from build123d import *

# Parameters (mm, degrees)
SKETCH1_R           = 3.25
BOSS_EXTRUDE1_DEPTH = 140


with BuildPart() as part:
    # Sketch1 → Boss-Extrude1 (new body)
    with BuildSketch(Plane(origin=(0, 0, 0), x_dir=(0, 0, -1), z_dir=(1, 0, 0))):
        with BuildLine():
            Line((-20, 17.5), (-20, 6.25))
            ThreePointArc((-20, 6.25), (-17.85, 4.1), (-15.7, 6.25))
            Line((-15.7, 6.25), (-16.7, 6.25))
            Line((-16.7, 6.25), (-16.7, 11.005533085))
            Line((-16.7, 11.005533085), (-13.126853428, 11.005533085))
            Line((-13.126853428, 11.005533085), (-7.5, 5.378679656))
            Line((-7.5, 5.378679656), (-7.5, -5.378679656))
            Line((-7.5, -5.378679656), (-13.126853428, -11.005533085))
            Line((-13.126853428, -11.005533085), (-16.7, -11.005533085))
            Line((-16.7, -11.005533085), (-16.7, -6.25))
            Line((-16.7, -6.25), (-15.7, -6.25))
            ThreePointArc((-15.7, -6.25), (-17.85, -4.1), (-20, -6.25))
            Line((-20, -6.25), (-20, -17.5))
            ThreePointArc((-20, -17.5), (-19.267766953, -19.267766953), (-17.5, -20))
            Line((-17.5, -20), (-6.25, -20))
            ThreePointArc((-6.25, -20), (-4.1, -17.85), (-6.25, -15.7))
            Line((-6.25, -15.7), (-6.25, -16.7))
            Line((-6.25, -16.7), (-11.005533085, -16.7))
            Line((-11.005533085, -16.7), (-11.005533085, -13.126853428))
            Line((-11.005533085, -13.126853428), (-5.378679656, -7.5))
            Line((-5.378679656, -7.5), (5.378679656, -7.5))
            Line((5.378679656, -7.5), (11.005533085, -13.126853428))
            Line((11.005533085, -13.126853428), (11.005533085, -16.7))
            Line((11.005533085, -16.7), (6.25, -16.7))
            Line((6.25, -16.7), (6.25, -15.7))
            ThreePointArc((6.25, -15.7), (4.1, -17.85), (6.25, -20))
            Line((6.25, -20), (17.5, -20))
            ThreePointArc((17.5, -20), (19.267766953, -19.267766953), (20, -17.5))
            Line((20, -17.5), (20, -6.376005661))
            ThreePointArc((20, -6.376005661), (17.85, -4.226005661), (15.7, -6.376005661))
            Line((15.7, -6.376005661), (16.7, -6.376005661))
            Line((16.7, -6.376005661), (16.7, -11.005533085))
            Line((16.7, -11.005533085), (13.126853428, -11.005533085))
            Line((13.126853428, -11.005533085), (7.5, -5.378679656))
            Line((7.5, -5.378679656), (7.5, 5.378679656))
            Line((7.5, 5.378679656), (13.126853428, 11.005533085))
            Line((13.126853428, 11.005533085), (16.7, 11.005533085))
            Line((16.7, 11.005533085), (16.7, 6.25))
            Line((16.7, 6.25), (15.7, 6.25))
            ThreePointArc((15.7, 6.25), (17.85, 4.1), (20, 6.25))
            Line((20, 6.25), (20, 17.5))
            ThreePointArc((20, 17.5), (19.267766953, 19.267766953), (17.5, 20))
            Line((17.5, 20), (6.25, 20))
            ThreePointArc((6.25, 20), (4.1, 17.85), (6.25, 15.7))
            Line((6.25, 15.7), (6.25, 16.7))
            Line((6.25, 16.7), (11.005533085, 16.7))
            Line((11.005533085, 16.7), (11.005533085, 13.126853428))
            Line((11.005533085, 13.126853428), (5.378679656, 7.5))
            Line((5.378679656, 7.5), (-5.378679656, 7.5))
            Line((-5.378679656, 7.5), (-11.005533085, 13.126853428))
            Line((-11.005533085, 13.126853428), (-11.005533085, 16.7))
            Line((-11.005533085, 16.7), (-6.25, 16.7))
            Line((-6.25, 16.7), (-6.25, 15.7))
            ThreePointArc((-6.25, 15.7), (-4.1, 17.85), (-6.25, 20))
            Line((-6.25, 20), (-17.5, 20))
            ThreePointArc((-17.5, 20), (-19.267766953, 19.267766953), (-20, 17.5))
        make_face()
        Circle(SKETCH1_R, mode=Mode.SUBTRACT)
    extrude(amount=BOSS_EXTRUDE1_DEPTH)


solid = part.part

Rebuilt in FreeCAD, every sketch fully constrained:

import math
import FreeCAD as App
import Part
import Sketcher

V = App.Vector
Q = App.Units.Quantity

doc = App.newDocument("Part")
body = doc.addObject("PartDesign::Body", "Body")

# Sketch on YZ plane
sketch1 = doc.addObject("Sketcher::SketchObject", "Sketch")
body.addObject(sketch1)
sketch1.AttachmentSupport = (doc.YZ_Plane, [""])
sketch1.MapMode = "FlatFace"
sketch1.addGeometry([
    Part.LineSegment(V(17.5, 20, 0), V(6.2, 20, 0)),  # 0
    Part.ArcOfCircle(Part.Circle(V(6.2, 17.9, 0), V(0, 0, 1), 2.1), math.radians(90), math.radians(270)),  # 1
    Part.LineSegment(V(6.2, 15.7, 0), V(6.2, 16.7, 0)),  # 2
    Part.LineSegment(V(6.2, 16.7, 0), V(11, 16.7, 0)),  # 3
    Part.LineSegment(V(11, 16.7, 0), V(11, 13.1, 0)),  # 4
    Part.LineSegment(V(11, 13.1, 0), V(5.4, 7.5, 0)),  # 5
    Part.LineSegment(V(5.4, 7.5, 0), V(-5.4, 7.5, 0)),  # 6
    Part.LineSegment(V(-5.4, 7.5, 0), V(-11, 13.1, 0)),  # 7
    Part.LineSegment(V(-11, 13.1, 0), V(-11, 16.7, 0)),  # 8
    Part.LineSegment(V(-11, 16.7, 0), V(-6.2, 16.7, 0)),  # 9
    Part.LineSegment(V(-6.2, 16.7, 0), V(-6.2, 15.7, 0)),  # 10
    Part.ArcOfCircle(Part.Circle(V(-6.2, 17.9, 0), V(0, 0, 1), 2.1), math.radians(-90), math.radians(90)),  # 11
    Part.LineSegment(V(-6.2, 20, 0), V(-17.5, 20, 0)),  # 12
    Part.ArcOfCircle(Part.Circle(V(-17.5, 17.5, 0), V(0, 0, 1), 2.5), math.radians(90), math.radians(180)),  # 13
    Part.LineSegment(V(-20, 17.5, 0), V(-20, 6.2, 0)),  # 14
    Part.ArcOfCircle(Part.Circle(V(-17.9, 6.2, 0), V(0, 0, 1), 2.1), math.radians(180), math.radians(360)),  # 15
    Part.LineSegment(V(-15.7, 6.2, 0), V(-16.7, 6.2, 0)),  # 16
    Part.LineSegment(V(-16.7, 6.2, 0), V(-16.7, 11, 0)),  # 17
    Part.LineSegment(V(-16.7, 11, 0), V(-13.1, 11, 0)),  # 18
    Part.LineSegment(V(-13.1, 11, 0), V(-7.5, 5.4, 0)),  # 19
    Part.LineSegment(V(-7.5, 5.4, 0), V(-7.5, -5.4, 0)),  # 20
    Part.LineSegment(V(-7.5, -5.4, 0), V(-13.1, -11, 0)),  # 21
    Part.LineSegment(V(-13.1, -11, 0), V(-16.7, -11, 0)),  # 22
    Part.LineSegment(V(-16.7, -11, 0), V(-16.7, -6.2, 0)),  # 23
    Part.LineSegment(V(-16.7, -6.2, 0), V(-15.7, -6.2, 0)),  # 24
    Part.ArcOfCircle(Part.Circle(V(-17.9, -6.2, 0), V(0, 0, 1), 2.1), math.radians(0), math.radians(180)),  # 25
    Part.LineSegment(V(-20, -6.2, 0), V(-20, -17.5, 0)),  # 26
    Part.ArcOfCircle(Part.Circle(V(-17.5, -17.5, 0), V(0, 0, 1), 2.5), math.radians(180), math.radians(270)),  # 27
    Part.LineSegment(V(-17.5, -20, 0), V(-6.4, -20, 0)),  # 28
    Part.ArcOfCircle(Part.Circle(V(-6.4, -17.9, 0), V(0, 0, 1), 2.1), math.radians(-90), math.radians(90)),  # 29
    Part.LineSegment(V(-6.4, -15.7, 0), V(-6.4, -16.7, 0)),  # 30
    Part.LineSegment(V(-6.4, -16.7, 0), V(-11, -16.7, 0)),  # 31
    Part.LineSegment(V(-11, -16.7, 0), V(-11, -13.1, 0)),  # 32
    Part.LineSegment(V(-11, -13.1, 0), V(-5.4, -7.5, 0)),  # 33
    Part.LineSegment(V(-5.4, -7.5, 0), V(5.4, -7.5, 0)),  # 34
    Part.LineSegment(V(5.4, -7.5, 0), V(11, -13.1, 0)),  # 35
    Part.LineSegment(V(11, -13.1, 0), V(11, -16.7, 0)),  # 36
    Part.LineSegment(V(11, -16.7, 0), V(6.2, -16.7, 0)),  # 37
    Part.LineSegment(V(6.2, -16.7, 0), V(6.2, -15.7, 0)),  # 38
    Part.ArcOfCircle(Part.Circle(V(6.2, -17.9, 0), V(0, 0, 1), 2.1), math.radians(90), math.radians(270)),  # 39
    Part.LineSegment(V(6.2, -20, 0), V(17.5, -20, 0)),  # 40
    Part.ArcOfCircle(Part.Circle(V(17.5, -17.5, 0), V(0, 0, 1), 2.5), math.radians(-90), math.radians(0)),  # 41
    Part.LineSegment(V(20, -17.5, 0), V(20, -6.2, 0)),  # 42
    Part.ArcOfCircle(Part.Circle(V(17.9, -6.2, 0), V(0, 0, 1), 2.1), math.radians(0), math.radians(180)),  # 43
    Part.LineSegment(V(15.7, -6.2, 0), V(16.7, -6.2, 0)),  # 44
    Part.LineSegment(V(16.7, -6.2, 0), V(16.7, -11, 0)),  # 45
    Part.LineSegment(V(16.7, -11, 0), V(13.1, -11, 0)),  # 46
    Part.LineSegment(V(13.1, -11, 0), V(7.5, -5.4, 0)),  # 47
    Part.LineSegment(V(7.5, -5.4, 0), V(7.5, 5.4, 0)),  # 48
    Part.LineSegment(V(7.5, 5.4, 0), V(13.1, 11, 0)),  # 49
    Part.LineSegment(V(13.1, 11, 0), V(16.7, 11, 0)),  # 50
    Part.LineSegment(V(16.7, 11, 0), V(16.7, 6.2, 0)),  # 51
    Part.LineSegment(V(16.7, 6.2, 0), V(15.7, 6.2, 0)),  # 52
    Part.ArcOfCircle(Part.Circle(V(17.9, 6.2, 0), V(0, 0, 1), 2.1), math.radians(180), math.radians(360)),  # 53
    Part.LineSegment(V(20, 6.2, 0), V(20, 17.5, 0)),  # 54
    Part.ArcOfCircle(Part.Circle(V(17.5, 17.5, 0), V(0, 0, 1), 2.5), math.radians(0), math.radians(90)),  # 55
    Part.Circle(V(0, 0, 0), V(0, 0, 1), 3.2),  # 56
], False)
sketch1.addConstraint([
    Sketcher.Constraint("Tangent", 0, 2, 1, 1),
    Sketcher.Constraint("Coincident", 1, 2, 2, 1),
    Sketcher.Constraint("Coincident", 2, 2, 3, 1),
    Sketcher.Constraint("Coincident", 3, 2, 4, 1),
    Sketcher.Constraint("Coincident", 4, 2, 5, 1),
    Sketcher.Constraint("Coincident", 5, 2, 6, 1),
    Sketcher.Constraint("Coincident", 6, 2, 7, 1),
    Sketcher.Constraint("Coincident", 7, 2, 8, 1),
    Sketcher.Constraint("Coincident", 8, 2, 9, 1),
    Sketcher.Constraint("Coincident", 9, 2, 10, 1),
    Sketcher.Constraint("Coincident", 10, 2, 11, 1),
    Sketcher.Constraint("Tangent", 11, 2, 12, 1),
    Sketcher.Constraint("Tangent", 12, 2, 13, 1),
    Sketcher.Constraint("Tangent", 13, 2, 14, 1),
    Sketcher.Constraint("Tangent", 14, 2, 15, 1),
    Sketcher.Constraint("Coincident", 15, 2, 16, 1),
    Sketcher.Constraint("Coincident", 16, 2, 17, 1),
    Sketcher.Constraint("Coincident", 17, 2, 18, 1),
    Sketcher.Constraint("Coincident", 18, 2, 19, 1),
    Sketcher.Constraint("Coincident", 19, 2, 20, 1),
    Sketcher.Constraint("Coincident", 20, 2, 21, 1),
    Sketcher.Constraint("Coincident", 21, 2, 22, 1),
    Sketcher.Constraint("Coincident", 22, 2, 23, 1),
    Sketcher.Constraint("Coincident", 23, 2, 24, 1),
    Sketcher.Constraint("Coincident", 24, 2, 25, 1),
    Sketcher.Constraint("Tangent", 25, 2, 26, 1),
    Sketcher.Constraint("Tangent", 26, 2, 27, 1),
    Sketcher.Constraint("Tangent", 27, 2, 28, 1),
    Sketcher.Constraint("Tangent", 28, 2, 29, 1),
    Sketcher.Constraint("Coincident", 29, 2, 30, 1),
    Sketcher.Constraint("Coincident", 30, 2, 31, 1),
    Sketcher.Constraint("Coincident", 31, 2, 32, 1),
    Sketcher.Constraint("Coincident", 32, 2, 33, 1),
    Sketcher.Constraint("Coincident", 33, 2, 34, 1),
    Sketcher.Constraint("Coincident", 34, 2, 35, 1),
    Sketcher.Constraint("Coincident", 35, 2, 36, 1),
    Sketcher.Constraint("Coincident", 36, 2, 37, 1),
    Sketcher.Constraint("Coincident", 37, 2, 38, 1),
    Sketcher.Constraint("Coincident", 38, 2, 39, 1),
    Sketcher.Constraint("Tangent", 39, 2, 40, 1),
    Sketcher.Constraint("Tangent", 40, 2, 41, 1),
    Sketcher.Constraint("Tangent", 41, 2, 42, 1),
    Sketcher.Constraint("Tangent", 42, 2, 43, 1),
    Sketcher.Constraint("Coincident", 43, 2, 44, 1),
    Sketcher.Constraint("Coincident", 44, 2, 45, 1),
    Sketcher.Constraint("Coincident", 45, 2, 46, 1),
    Sketcher.Constraint("Coincident", 46, 2, 47, 1),
    Sketcher.Constraint("Coincident", 47, 2, 48, 1),
    Sketcher.Constraint("Coincident", 48, 2, 49, 1),
    Sketcher.Constraint("Coincident", 49, 2, 50, 1),
    Sketcher.Constraint("Coincident", 50, 2, 51, 1),
    Sketcher.Constraint("Coincident", 51, 2, 52, 1),
    Sketcher.Constraint("Coincident", 52, 2, 53, 1),
    Sketcher.Constraint("Tangent", 53, 2, 54, 1),
    Sketcher.Constraint("Tangent", 54, 2, 55, 1),
    Sketcher.Constraint("Tangent", 55, 2, 0, 1),
    Sketcher.Constraint("Horizontal", 0),
    Sketcher.Constraint("Vertical", 2),
    Sketcher.Constraint("Horizontal", 3),
    Sketcher.Constraint("Vertical", 4),
    Sketcher.Constraint("Horizontal", 6),
    Sketcher.Constraint("Vertical", 8),
    Sketcher.Constraint("Horizontal", 9),
    Sketcher.Constraint("Vertical", 10),
    Sketcher.Constraint("Horizontal", 12),
    Sketcher.Constraint("Vertical", 14),
    Sketcher.Constraint("Horizontal", 16),
    Sketcher.Constraint("Vertical", 17),
    Sketcher.Constraint("Horizontal", 18),
    Sketcher.Constraint("Vertical", 20),
    Sketcher.Constraint("Horizontal", 22),
    Sketcher.Constraint("Vertical", 23),
    Sketcher.Constraint("Horizontal", 24),
    Sketcher.Constraint("Vertical", 26),
    Sketcher.Constraint("Horizontal", 28),
    Sketcher.Constraint("Vertical", 30),
    Sketcher.Constraint("Horizontal", 31),
    Sketcher.Constraint("Vertical", 32),
    Sketcher.Constraint("Horizontal", 34),
    Sketcher.Constraint("Vertical", 36),
    Sketcher.Constraint("Horizontal", 37),
    Sketcher.Constraint("Vertical", 38),
    Sketcher.Constraint("Horizontal", 40),
    Sketcher.Constraint("Vertical", 42),
    Sketcher.Constraint("Horizontal", 44),
    Sketcher.Constraint("Vertical", 45),
    Sketcher.Constraint("Horizontal", 46),
    Sketcher.Constraint("Vertical", 48),
    Sketcher.Constraint("Horizontal", 50),
    Sketcher.Constraint("Vertical", 51),
    Sketcher.Constraint("Horizontal", 52),
    Sketcher.Constraint("Vertical", 54),
    Sketcher.Constraint("Coincident", 56, 3, -1, 1),
    Sketcher.Constraint("Equal", 1, 11),
    Sketcher.Constraint("Equal", 11, 15),
    Sketcher.Constraint("Equal", 15, 25),
    Sketcher.Constraint("Equal", 13, 27),
    Sketcher.Constraint("Equal", 25, 29),
    Sketcher.Constraint("Equal", 29, 39),
    Sketcher.Constraint("Equal", 27, 41),
    Sketcher.Constraint("Equal", 39, 43),
    Sketcher.Constraint("Equal", 43, 53),
    Sketcher.Constraint("Equal", 41, 55),
    Sketcher.Constraint("Symmetric", 11, 3, 39, 3, -1, 1),
    Sketcher.Constraint("Symmetric", 15, 3, 43, 3, -1, 1),
    Sketcher.Constraint("Symmetric", 25, 3, 53, 3, -1, 1),
    Sketcher.Constraint("Symmetric", 3, 2, 31, 2, -1, 1),
    Sketcher.Constraint("Symmetric", 5, 2, 33, 2, -1, 1),
    Sketcher.Constraint("Symmetric", 7, 2, 35, 2, -1, 1),
    Sketcher.Constraint("Symmetric", 9, 2, 37, 2, -1, 1),
    Sketcher.Constraint("Symmetric", 16, 2, 44, 2, -1, 1),
    Sketcher.Constraint("Symmetric", 18, 2, 46, 2, -1, 1),
    Sketcher.Constraint("Symmetric", 19, 2, 47, 2, -1, 1),
    Sketcher.Constraint("Symmetric", 21, 2, 49, 2, -1, 1),
    Sketcher.Constraint("Symmetric", 23, 2, 51, 2, -1, 1),
    Sketcher.Constraint("Symmetric", 1, 3, 11, 3, -2),
    Sketcher.Constraint("Symmetric", 27, 3, 41, 3, -2),
    Sketcher.Constraint("Symmetric", 4, 2, 7, 2, -2),
    Sketcher.Constraint("Symmetric", 2, 2, 9, 2, -2),
    Sketcher.Constraint("Symmetric", 23, 2, 44, 2, -2),
    Sketcher.Constraint("Symmetric", 21, 2, 46, 2, -2),
    Sketcher.Constraint("Perpendicular", 5, 7),
    Sketcher.Constraint("Parallel", 7, 19),
    Sketcher.Constraint("Perpendicular", 19, 21),
    Sketcher.Constraint("Parallel", 21, 33),
    Sketcher.Constraint("Perpendicular", 33, 35),
    Sketcher.Constraint("Perpendicular", 47, 49),
    Sketcher.Constraint("Horizontal", 25, 3, 43, 3),
    Sketcher.Constraint("Horizontal", 14, 2, 15, 2),
    Sketcher.Constraint("Horizontal", 20, 2, 47, 2),
    Sketcher.Constraint("Vertical", 0, 2, 1, 2),
    Sketcher.Constraint("Vertical", 28, 2, 29, 2),
    Sketcher.Constraint("Equal", 52, 2),
    Sketcher.Constraint("Equal", 50, 4),
    Sketcher.Constraint("Equal", 40, 14),
    Sketcher.Constraint("Equal", 37, 17),
    Sketcher.Constraint("Equal", 34, 20),
    Sketcher.Constraint("Equal", 7, 19),
    Sketcher.Constraint("Diameter", 56, Q("6.5 mm")),
    Sketcher.Constraint("Radius", 13, Q("2.5 mm")),
    Sketcher.Constraint("DistanceX", 16, 2, 16, 1, Q("1 mm")),
    Sketcher.Constraint("Radius", 1, Q("2.15 mm")),
    Sketcher.Constraint("DistanceY", -1, 1, 0, 2, Q("20 mm")),
    Sketcher.Constraint("DistanceX", 0, 2, 0, 1, Q("11.25 mm")),
    Sketcher.Constraint("DistanceY", -1, 1, 5, 2, Q("7.5 mm")),
    Sketcher.Constraint("DistanceX", 6, 2, 6, 1, Q("10.757359 mm")),
    Sketcher.Constraint("DistanceX", 3, 1, 3, 2, Q("4.755533 mm")),
    Sketcher.Constraint("DistanceX", 28, 1, 28, 2, Q("11.123994 mm")),
])
pad1 = doc.addObject("PartDesign::Pad", "Pad")
body.addObject(pad1)
pad1.Profile = sketch1
pad1.Length = 140

doc.recompute()
